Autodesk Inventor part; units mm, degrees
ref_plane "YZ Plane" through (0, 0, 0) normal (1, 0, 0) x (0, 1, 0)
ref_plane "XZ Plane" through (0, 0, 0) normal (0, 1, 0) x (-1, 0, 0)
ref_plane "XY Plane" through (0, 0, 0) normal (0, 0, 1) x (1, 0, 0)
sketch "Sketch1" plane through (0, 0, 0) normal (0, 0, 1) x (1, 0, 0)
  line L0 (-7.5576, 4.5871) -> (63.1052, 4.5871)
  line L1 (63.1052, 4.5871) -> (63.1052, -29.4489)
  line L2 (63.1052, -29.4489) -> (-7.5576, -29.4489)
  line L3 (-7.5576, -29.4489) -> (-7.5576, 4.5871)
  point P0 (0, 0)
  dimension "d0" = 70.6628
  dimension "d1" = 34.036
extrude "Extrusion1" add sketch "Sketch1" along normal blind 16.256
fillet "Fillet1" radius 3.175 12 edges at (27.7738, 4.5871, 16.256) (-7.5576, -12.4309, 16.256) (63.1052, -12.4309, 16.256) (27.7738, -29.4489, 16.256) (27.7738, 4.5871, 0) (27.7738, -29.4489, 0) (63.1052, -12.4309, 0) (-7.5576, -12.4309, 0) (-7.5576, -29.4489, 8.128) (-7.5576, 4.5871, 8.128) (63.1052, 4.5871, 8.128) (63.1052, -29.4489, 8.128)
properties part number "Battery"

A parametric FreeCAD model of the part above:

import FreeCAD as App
import Part
import Sketcher
Q = App.Units.Quantity


def add_polygon(sketch, points):
    """Adds a closed chain of lines whose ends are joined by coincident constraints."""
    first, n = sketch.GeometryCount, len(points)
    for a, b in zip(points, points[1:] + points[:1]):
        sketch.addGeometry(Part.LineSegment(App.Vector(*a, 0), App.Vector(*b, 0)), False)
    for i in range(n):
        sketch.addConstraint(Sketcher.Constraint("Coincident", first + i, 2, first + (i + 1) % n, 1))

doc = App.newDocument("Part")
body = doc.addObject("PartDesign::Body", "Body")

# Sketch on XY plane
sketch1 = body.newObject("Sketcher::SketchObject", "Sketch")
sketch1.AttachmentSupport = (doc.getObject("XY_Plane"), [""])
sketch1.MapMode = "FlatFace"
add_polygon(sketch1, [(63, 5), (-8, 5), (-8, -29), (63, -29)])  # lines 0-3
sketch1.addConstraint([
    Sketcher.Constraint("Horizontal", 0),
    Sketcher.Constraint("Vertical", 1),
    Sketcher.Constraint("Horizontal", 2),
    Sketcher.Constraint("Vertical", 3),
    Sketcher.Constraint("DistanceY", 1, 2, 1, 1, Q("1.34 in")),
    Sketcher.Constraint("DistanceX", 0, 2, 0, 1, Q("2.782 in")),
    Sketcher.Constraint("DistanceY", -1, 1, 0, 2, Q("0.1806 in")),
    Sketcher.Constraint("DistanceX", 0, 2, -1, 1, 7.5576),
])
pad1 = body.newObject("PartDesign::Pad", "Pad")
pad1.Profile = sketch1
pad1.Length = Q("0.64 in")
doc.recompute()

fillet = body.newObject("PartDesign::Fillet", "Fillet")
fillet.Base = (pad1, ["Edge1"])
fillet.UseAllEdges = True
fillet.Radius = Q("0.125 in")

doc.recompute()
